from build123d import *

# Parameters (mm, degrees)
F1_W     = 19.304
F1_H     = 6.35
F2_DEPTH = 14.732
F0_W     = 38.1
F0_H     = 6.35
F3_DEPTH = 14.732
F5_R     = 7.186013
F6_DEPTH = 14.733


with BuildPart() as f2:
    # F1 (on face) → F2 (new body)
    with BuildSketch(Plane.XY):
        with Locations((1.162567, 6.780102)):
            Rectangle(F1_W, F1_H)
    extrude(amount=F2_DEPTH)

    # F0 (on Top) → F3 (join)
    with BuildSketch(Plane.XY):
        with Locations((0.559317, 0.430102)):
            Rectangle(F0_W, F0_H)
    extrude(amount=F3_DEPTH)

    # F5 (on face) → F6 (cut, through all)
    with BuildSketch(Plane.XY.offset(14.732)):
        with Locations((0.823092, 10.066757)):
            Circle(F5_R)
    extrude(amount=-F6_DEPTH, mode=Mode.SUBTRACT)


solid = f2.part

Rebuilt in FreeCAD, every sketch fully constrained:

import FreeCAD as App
import Part
import Sketcher
Q = App.Units.Quantity

doc = App.newDocument("Part")
body = doc.addObject("PartDesign::Body", "Body")

# Sketch on XY plane
sketch1 = body.newObject("Sketcher::SketchObject", "Sketch")
sketch1.AttachmentSupport = (doc.getObject("XY_Plane"), [""])
sketch1.MapMode = "FlatFace"
sketch1.addGeometry(Part.LineSegment(App.Vector(-8, 10, 0), App.Vector(-8, 4, 0)), False)
sketch1.addGeometry(Part.LineSegment(App.Vector(-8, 4, 0), App.Vector(11, 4, 0)), False)
sketch1.addGeometry(Part.LineSegment(App.Vector(11, 4, 0), App.Vector(11, 10, 0)), False)
sketch1.addGeometry(Part.LineSegment(App.Vector(11, 10, 0), App.Vector(-8, 10, 0)), False)
sketch1.addConstraint(Sketcher.Constraint("Coincident", 0, 2, 1, 1))
sketch1.addConstraint(Sketcher.Constraint("Coincident", 1, 2, 2, 1))
sketch1.addConstraint(Sketcher.Constraint("Coincident", 2, 2, 3, 1))
sketch1.addConstraint(Sketcher.Constraint("Coincident", 3, 2, 0, 1))
sketch1.addConstraint(Sketcher.Constraint("Vertical", 0))
sketch1.addConstraint(Sketcher.Constraint("Horizontal", 1))
sketch1.addConstraint(Sketcher.Constraint("Vertical", 2))
sketch1.addConstraint(Sketcher.Constraint("Horizontal", 3))
sketch1.addConstraint(Sketcher.Constraint("DistanceX", 1, 1, 1, 2, Q("0.76 in")))
sketch1.addConstraint(Sketcher.Constraint("DistanceY", 0, 2, 0, 1, Q("0.25 in")))
sketch1.addConstraint(Sketcher.Constraint("DistanceY", -1, 1, 0, 2, 3.605102))
sketch1.addConstraint(Sketcher.Constraint("DistanceX", 0, 2, -1, 1, 8.489433))
pad1 = body.newObject("PartDesign::Pad", "Pad")
pad1.Profile = sketch1
pad1.Length = Q("0.58 in")

# Sketch on XY plane
sketch2 = body.newObject("Sketcher::SketchObject", "Sketch001")
sketch2.AttachmentSupport = (doc.getObject("XY_Plane"), [""])
sketch2.MapMode = "FlatFace"
sketch2.addGeometry(Part.LineSegment(App.Vector(-18, 4, 0), App.Vector(-18, -3, 0)), False)
sketch2.addGeometry(Part.LineSegment(App.Vector(-18, -3, 0), App.Vector(20, -3, 0)), False)
sketch2.addGeometry(Part.LineSegment(App.Vector(20, -3, 0), App.Vector(20, 4, 0)), False)
sketch2.addGeometry(Part.LineSegment(App.Vector(20, 4, 0), App.Vector(-18, 4, 0)), False)
sketch2.addConstraint(Sketcher.Constraint("Coincident", 0, 2, 1, 1))
sketch2.addConstraint(Sketcher.Constraint("Coincident", 1, 2, 2, 1))
sketch2.addConstraint(Sketcher.Constraint("Coincident", 2, 2, 3, 1))
sketch2.addConstraint(Sketcher.Constraint("Coincident", 3, 2, 0, 1))
sketch2.addConstraint(Sketcher.Constraint("Vertical", 0))
sketch2.addConstraint(Sketcher.Constraint("Horizontal", 1))
sketch2.addConstraint(Sketcher.Constraint("Vertical", 2))
sketch2.addConstraint(Sketcher.Constraint("Horizontal", 3))
sketch2.addConstraint(Sketcher.Constraint("DistanceX", 1, 1, 1, 2, Q("1.5 in")))
sketch2.addConstraint(Sketcher.Constraint("DistanceY", 0, 2, 0, 1, Q("0.25 in")))
sketch2.addConstraint(Sketcher.Constraint("DistanceY", 0, 2, -1, 1, 2.744898))
sketch2.addConstraint(Sketcher.Constraint("DistanceX", 0, 2, -1, 1, 18.490683))
pad2 = body.newObject("PartDesign::Pad", "Pad001")
pad2.Profile = sketch2
pad2.Length = Q("0.58 in")

# Sketch on XY plane
sketch3 = body.newObject("Sketcher::SketchObject", "Sketch002")
sketch3.AttachmentSupport = (doc.getObject("XY_Plane"), [""])
sketch3.MapMode = "FlatFace"
sketch3.AttachmentOffset = App.Placement(App.Vector(0, 0, 0.58 * 25.4), App.Rotation())
sketch3.addGeometry(Part.Circle(App.Vector(1, 10, 0), App.Vector(0, 0, 1), 7), False)
sketch3.addConstraint(Sketcher.Constraint("Diameter", 0, 14.372026))
sketch3.addConstraint(Sketcher.Constraint("DistanceX", -1, 1, 0, 3, 0.823092))
sketch3.addConstraint(Sketcher.Constraint("DistanceY", -1, 1, 0, 3, 10.066757))
pocket1 = body.newObject("PartDesign::Pocket", "Pocket")
pocket1.Profile = sketch3
pocket1.Type = "ThroughAll"

doc.recompute()
